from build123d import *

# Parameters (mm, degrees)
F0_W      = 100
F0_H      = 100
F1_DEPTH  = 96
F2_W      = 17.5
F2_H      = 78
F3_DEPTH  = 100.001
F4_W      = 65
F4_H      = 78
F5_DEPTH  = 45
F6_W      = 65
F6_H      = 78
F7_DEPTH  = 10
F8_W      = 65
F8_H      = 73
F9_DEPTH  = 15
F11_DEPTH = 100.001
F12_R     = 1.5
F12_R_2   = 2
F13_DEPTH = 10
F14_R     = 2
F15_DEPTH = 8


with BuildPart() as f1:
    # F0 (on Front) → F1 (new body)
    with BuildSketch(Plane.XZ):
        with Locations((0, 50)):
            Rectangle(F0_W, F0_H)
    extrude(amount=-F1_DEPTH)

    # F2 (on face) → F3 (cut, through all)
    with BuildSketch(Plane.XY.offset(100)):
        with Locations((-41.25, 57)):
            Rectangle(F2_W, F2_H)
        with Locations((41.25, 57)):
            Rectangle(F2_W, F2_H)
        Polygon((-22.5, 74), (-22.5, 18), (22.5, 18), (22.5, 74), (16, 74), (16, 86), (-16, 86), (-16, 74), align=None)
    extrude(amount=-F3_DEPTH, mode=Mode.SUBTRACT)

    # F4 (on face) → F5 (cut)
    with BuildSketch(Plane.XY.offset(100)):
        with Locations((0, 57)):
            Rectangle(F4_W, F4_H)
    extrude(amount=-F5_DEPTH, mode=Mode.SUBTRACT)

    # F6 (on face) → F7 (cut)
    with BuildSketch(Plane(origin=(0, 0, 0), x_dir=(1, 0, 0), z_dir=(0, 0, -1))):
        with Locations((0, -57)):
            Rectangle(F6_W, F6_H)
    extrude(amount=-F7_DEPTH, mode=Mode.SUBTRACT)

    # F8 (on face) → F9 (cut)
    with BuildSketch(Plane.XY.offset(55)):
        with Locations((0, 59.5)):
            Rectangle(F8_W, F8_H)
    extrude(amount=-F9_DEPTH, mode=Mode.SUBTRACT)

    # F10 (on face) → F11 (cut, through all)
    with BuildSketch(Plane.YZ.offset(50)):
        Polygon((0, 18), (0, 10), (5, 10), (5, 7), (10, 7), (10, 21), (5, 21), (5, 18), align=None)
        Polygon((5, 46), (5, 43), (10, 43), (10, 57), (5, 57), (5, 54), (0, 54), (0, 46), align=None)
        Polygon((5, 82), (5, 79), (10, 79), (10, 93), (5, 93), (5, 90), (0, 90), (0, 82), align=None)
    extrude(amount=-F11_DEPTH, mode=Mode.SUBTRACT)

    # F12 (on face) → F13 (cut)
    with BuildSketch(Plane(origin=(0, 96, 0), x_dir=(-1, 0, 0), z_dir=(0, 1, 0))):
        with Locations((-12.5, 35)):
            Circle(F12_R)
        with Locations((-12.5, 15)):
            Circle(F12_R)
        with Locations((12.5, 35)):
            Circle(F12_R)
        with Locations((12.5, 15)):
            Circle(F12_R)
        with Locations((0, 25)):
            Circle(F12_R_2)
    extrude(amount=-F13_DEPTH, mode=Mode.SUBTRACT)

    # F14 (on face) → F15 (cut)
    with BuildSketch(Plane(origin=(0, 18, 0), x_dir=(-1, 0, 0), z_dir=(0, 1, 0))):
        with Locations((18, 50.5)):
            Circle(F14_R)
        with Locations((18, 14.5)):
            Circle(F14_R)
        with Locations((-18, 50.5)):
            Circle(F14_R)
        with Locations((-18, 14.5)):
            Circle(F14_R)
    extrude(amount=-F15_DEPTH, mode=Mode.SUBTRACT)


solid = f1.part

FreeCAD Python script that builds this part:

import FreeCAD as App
import Part
import Sketcher

V = App.Vector

doc = App.newDocument("Part")
body = doc.addObject("PartDesign::Body", "Body")

# Sketch on XZ plane
sketch1 = doc.addObject("Sketcher::SketchObject", "Sketch")
body.addObject(sketch1)
sketch1.AttachmentSupport = (doc.XZ_Plane, [""])
sketch1.MapMode = "FlatFace"
sketch1.addGeometry(Part.LineSegment(V(-50, 100, 0), V(-50, 0, 0)), False)
sketch1.addGeometry(Part.LineSegment(V(-50, 0, 0), V(50, 0, 0)), False)
sketch1.addGeometry(Part.LineSegment(V(50, 0, 0), V(50, 100, 0)), False)
sketch1.addGeometry(Part.LineSegment(V(50, 100, 0), V(-50, 100, 0)), False)
sketch1.addConstraint(Sketcher.Constraint("Coincident", 0, 2, 1, 1))
sketch1.addConstraint(Sketcher.Constraint("Coincident", 1, 2, 2, 1))
sketch1.addConstraint(Sketcher.Constraint("Coincident", 2, 2, 3, 1))
sketch1.addConstraint(Sketcher.Constraint("Coincident", 3, 2, 0, 1))
sketch1.addConstraint(Sketcher.Constraint("Vertical", 0))
sketch1.addConstraint(Sketcher.Constraint("Horizontal", 1))
sketch1.addConstraint(Sketcher.Constraint("Vertical", 2))
sketch1.addConstraint(Sketcher.Constraint("Horizontal", 3))
sketch1.addConstraint(Sketcher.Constraint("Symmetric", 0, 2, 1, 2, -1, 1))
sketch1.addConstraint(Sketcher.Constraint("Equal", 3, 0))
sketch1.addConstraint(Sketcher.Constraint("DistanceX", 1, 1, 1, 2, 100.0))
pad1 = doc.addObject("PartDesign::Pad", "Pad")
body.addObject(pad1)
pad1.Profile = sketch1
pad1.Length = 96
pad1.Reversed = True

# Sketch on XY plane
sketch2 = doc.addObject("Sketcher::SketchObject", "Sketch001")
body.addObject(sketch2)
sketch2.AttachmentSupport = (doc.XY_Plane, [""])
sketch2.MapMode = "FlatFace"
sketch2.AttachmentOffset = App.Placement(V(0, 0, 100), App.Rotation())
sketch2.addGeometry(Part.LineSegment(V(-50, 96, 0), V(-50, 18, 0)), False)
sketch2.addGeometry(Part.LineSegment(V(-50, 18, 0), V(-32, 18, 0)), False)
sketch2.addGeometry(Part.LineSegment(V(-32, 18, 0), V(-32, 96, 0)), False)
sketch2.addGeometry(Part.LineSegment(V(-32, 96, 0), V(-50, 96, 0)), False)
sketch2.addGeometry(Part.LineSegment(V(32, 96, 0), V(32, 18, 0)), False)
sketch2.addGeometry(Part.LineSegment(V(32, 18, 0), V(50, 18, 0)), False)
sketch2.addGeometry(Part.LineSegment(V(50, 18, 0), V(50, 96, 0)), False)
sketch2.addGeometry(Part.LineSegment(V(50, 96, 0), V(32, 96, 0)), False)
sketch2.addGeometry(Part.LineSegment(V(-22, 74, 0), V(-22, 18, 0)), False)
sketch2.addGeometry(Part.LineSegment(V(-22, 18, 0), V(22, 18, 0)), False)
sketch2.addGeometry(Part.LineSegment(V(22, 18, 0), V(22, 74, 0)), False)
sketch2.addGeometry(Part.LineSegment(V(22, 74, 0), V(16, 74, 0)), False)
sketch2.addGeometry(Part.LineSegment(V(16, 74, 0), V(16, 86, 0)), False)
sketch2.addGeometry(Part.LineSegment(V(16, 86, 0), V(-16, 86, 0)), False)
sketch2.addGeometry(Part.LineSegment(V(-16, 86, 0), V(-16, 74, 0)), False)
sketch2.addGeometry(Part.LineSegment(V(-16, 74, 0), V(-22, 74, 0)), False)
sketch2.addConstraint(Sketcher.Constraint("Coincident", 0, 2, 1, 1))
sketch2.addConstraint(Sketcher.Constraint("Coincident", 1, 2, 2, 1))
sketch2.addConstraint(Sketcher.Constraint("Coincident", 2, 2, 3, 1))
sketch2.addConstraint(Sketcher.Constraint("Coincident", 3, 2, 0, 1))
sketch2.addConstraint(Sketcher.Constraint("Coincident", 4, 2, 5, 1))
sketch2.addConstraint(Sketcher.Constraint("Coincident", 5, 2, 6, 1))
sketch2.addConstraint(Sketcher.Constraint("Coincident", 6, 2, 7, 1))
sketch2.addConstraint(Sketcher.Constraint("Coincident", 7, 2, 4, 1))
sketch2.addConstraint(Sketcher.Constraint("Coincident", 8, 2, 9, 1))
sketch2.addConstraint(Sketcher.Constraint("Coincident", 9, 2, 10, 1))
sketch2.addConstraint(Sketcher.Constraint("Coincident", 10, 2, 11, 1))
sketch2.addConstraint(Sketcher.Constraint("Coincident", 11, 2, 12, 1))
sketch2.addConstraint(Sketcher.Constraint("Coincident", 12, 2, 13, 1))
sketch2.addConstraint(Sketcher.Constraint("Coincident", 13, 2, 14, 1))
sketch2.addConstraint(Sketcher.Constraint("Coincident", 14, 2, 15, 1))
sketch2.addConstraint(Sketcher.Constraint("Coincident", 15, 2, 8, 1))
sketch2.addConstraint(Sketcher.Constraint("Vertical", 0))
sketch2.addConstraint(Sketcher.Constraint("Horizontal", 1))
sketch2.addConstraint(Sketcher.Constraint("Vertical", 2))
sketch2.addConstraint(Sketcher.Constraint("Horizontal", 3))
sketch2.addConstraint(Sketcher.Constraint("Vertical", 4))
sketch2.addConstraint(Sketcher.Constraint("Horizontal", 5))
sketch2.addConstraint(Sketcher.Constraint("Vertical", 6))
sketch2.addConstraint(Sketcher.Constraint("Horizontal", 7))
sketch2.addConstraint(Sketcher.Constraint("Vertical", 8))
sketch2.addConstraint(Sketcher.Constraint("Horizontal", 9))
sketch2.addConstraint(Sketcher.Constraint("Vertical", 10))
sketch2.addConstraint(Sketcher.Constraint("Horizontal", 11))
sketch2.addConstraint(Sketcher.Constraint("Vertical", 12))
sketch2.addConstraint(Sketcher.Constraint("Horizontal", 13))
sketch2.addConstraint(Sketcher.Constraint("Vertical", 14))
sketch2.addConstraint(Sketcher.Constraint("Horizontal", 15))
sketch2.addConstraint(Sketcher.Constraint("Symmetric", 1, 2, 4, 2, -2))
sketch2.addConstraint(Sketcher.Constraint("Symmetric", 3, 2, 6, 2, -2))
sketch2.addConstraint(Sketcher.Constraint("Symmetric", 11, 2, 14, 2, -2))
sketch2.addConstraint(Sketcher.Constraint("Horizontal", 5, 2, 8, 2))
sketch2.addConstraint(Sketcher.Constraint("Equal", 11, 15))
sketch2.addConstraint(Sketcher.Constraint("DistanceX", 9, 1, 9, 2, 45.0))
sketch2.addConstraint(Sketcher.Constraint("DistanceX", 13, 2, 13, 1, 32.0))
sketch2.addConstraint(Sketcher.Constraint("DistanceY", 0, 2, 0, 1, 78.0))
sketch2.addConstraint(Sketcher.Constraint("DistanceY", 8, 2, 8, 1, 56.0))
sketch2.addConstraint(Sketcher.Constraint("DistanceY", 12, 1, 12, 2, 12.0))
sketch2.addConstraint(Sketcher.Constraint("DistanceX", 1, 1, 1, 2, 17.5))
sketch2.addConstraint(Sketcher.Constraint("DistanceX", 0, 2, -1, 1, 50.0))
sketch2.addConstraint(Sketcher.Constraint("DistanceY", -1, 1, 0, 2, 18.0))
pocket1 = doc.addObject("PartDesign::Pocket", "Pocket")
body.addObject(pocket1)
pocket1.Profile = sketch2
pocket1.Type = "ThroughAll"

# Sketch on XY plane
sketch3 = doc.addObject("Sketcher::SketchObject", "Sketch002")
body.addObject(sketch3)
sketch3.AttachmentSupport = (doc.XY_Plane, [""])
sketch3.MapMode = "FlatFace"
sketch3.AttachmentOffset = App.Placement(V(0, 0, 100), App.Rotation())
sketch3.addGeometry(Part.LineSegment(V(-32, 96, 0), V(-32, 18, 0)), False)
sketch3.addGeometry(Part.LineSegment(V(-32, 18, 0), V(32, 18, 0)), False)
sketch3.addGeometry(Part.LineSegment(V(32, 18, 0), V(32, 96, 0)), False)
sketch3.addGeometry(Part.LineSegment(V(32, 96, 0), V(-32, 96, 0)), False)
sketch3.addConstraint(Sketcher.Constraint("Coincident", 0, 2, 1, 1))
sketch3.addConstraint(Sketcher.Constraint("Coincident", 1, 2, 2, 1))
sketch3.addConstraint(Sketcher.Constraint("Coincident", 2, 2, 3, 1))
sketch3.addConstraint(Sketcher.Constraint("Coincident", 3, 2, 0, 1))
sketch3.addConstraint(Sketcher.Constraint("Vertical", 0))
sketch3.addConstraint(Sketcher.Constraint("Horizontal", 1))
sketch3.addConstraint(Sketcher.Constraint("Vertical", 2))
sketch3.addConstraint(Sketcher.Constraint("Horizontal", 3))
sketch3.addConstraint(Sketcher.Constraint("DistanceX", 1, 1, 1, 2, 65.0))
sketch3.addConstraint(Sketcher.Constraint("DistanceY", 0, 2, 0, 1, 78.0))
sketch3.addConstraint(Sketcher.Constraint("DistanceY", -1, 1, 0, 2, 18.0))
sketch3.addConstraint(Sketcher.Constraint("DistanceX", 0, 2, -1, 1, 32.5))
pocket2 = doc.addObject("PartDesign::Pocket", "Pocket001")
body.addObject(pocket2)
pocket2.Profile = sketch3
pocket2.Length = 45

# Sketch on XY plane
sketch4 = doc.addObject("Sketcher::SketchObject", "Sketch003")
body.addObject(sketch4)
sketch4.AttachmentSupport = (doc.XY_Plane, [""])
sketch4.MapMode = "FlatFace"
sketch4.addGeometry(Part.LineSegment(V(-32, 18, 0), V(-32, 96, 0)), False)
sketch4.addGeometry(Part.LineSegment(V(-32, 96, 0), V(32, 96, 0)), False)
sketch4.addGeometry(Part.LineSegment(V(32, 96, 0), V(32, 18, 0)), False)
sketch4.addGeometry(Part.LineSegment(V(32, 18, 0), V(-32, 18, 0)), False)
sketch4.addConstraint(Sketcher.Constraint("Coincident", 0, 2, 1, 1))
sketch4.addConstraint(Sketcher.Constraint("Coincident", 1, 2, 2, 1))
sketch4.addConstraint(Sketcher.Constraint("Coincident", 2, 2, 3, 1))
sketch4.addConstraint(Sketcher.Constraint("Coincident", 3, 2, 0, 1))
sketch4.addConstraint(Sketcher.Constraint("Vertical", 0))
sketch4.addConstraint(Sketcher.Constraint("Horizontal", 1))
sketch4.addConstraint(Sketcher.Constraint("Vertical", 2))
sketch4.addConstraint(Sketcher.Constraint("Horizontal", 3))
sketch4.addConstraint(Sketcher.Constraint("DistanceX", 1, 1, 1, 2, 65.0))
sketch4.addConstraint(Sketcher.Constraint("DistanceY", 0, 1, 0, 2, 78.0))
sketch4.addConstraint(Sketcher.Constraint("DistanceY", -1, 1, 0, 2, 96.0))
sketch4.addConstraint(Sketcher.Constraint("DistanceX", 0, 2, -1, 1, 32.5))
pocket3 = doc.addObject("PartDesign::Pocket", "Pocket002")
body.addObject(pocket3)
pocket3.Profile = sketch4
pocket3.Length = 10
pocket3.Reversed = True

# Sketch on XY plane
sketch5 = doc.addObject("Sketcher::SketchObject", "Sketch004")
body.addObject(sketch5)
sketch5.AttachmentSupport = (doc.XY_Plane, [""])
sketch5.MapMode = "FlatFace"
sketch5.AttachmentOffset = App.Placement(V(0, 0, 55), App.Rotation())
sketch5.addGeometry(Part.LineSegment(V(-32, 96, 0), V(-32, 23, 0)), False)
sketch5.addGeometry(Part.LineSegment(V(-32, 23, 0), V(32, 23, 0)), False)
sketch5.addGeometry(Part.LineSegment(V(32, 23, 0), V(32, 96, 0)), False)
sketch5.addGeometry(Part.LineSegment(V(32, 96, 0), V(-32, 96, 0)), False)
sketch5.addConstraint(Sketcher.Constraint("Coincident", 0, 2, 1, 1))
sketch5.addConstraint(Sketcher.Constraint("Coincident", 1, 2, 2, 1))
sketch5.addConstraint(Sketcher.Constraint("Coincident", 2, 2, 3, 1))
sketch5.addConstraint(Sketcher.Constraint("Coincident", 3, 2, 0, 1))
sketch5.addConstraint(Sketcher.Constraint("Vertical", 0))
sketch5.addConstraint(Sketcher.Constraint("Horizontal", 1))
sketch5.addConstraint(Sketcher.Constraint("Vertical", 2))
sketch5.addConstraint(Sketcher.Constraint("Horizontal", 3))
sketch5.addConstraint(Sketcher.Constraint("DistanceX", 1, 1, 1, 2, 65.0))
sketch5.addConstraint(Sketcher.Constraint("DistanceY", 0, 2, 0, 1, 73.0))
sketch5.addConstraint(Sketcher.Constraint("DistanceY", -1, 1, 0, 2, 23.0))
sketch5.addConstraint(Sketcher.Constraint("DistanceX", 0, 2, -1, 1, 32.5))
pocket4 = doc.addObject("PartDesign::Pocket", "Pocket003")
body.addObject(pocket4)
pocket4.Profile = sketch5
pocket4.Length = 15

# Sketch on YZ plane
sketch6 = doc.addObject("Sketcher::SketchObject", "Sketch005")
body.addObject(sketch6)
sketch6.AttachmentSupport = (doc.YZ_Plane, [""])
sketch6.MapMode = "FlatFace"
sketch6.AttachmentOffset = App.Placement(V(0, 0, 50), App.Rotation())
sketch6.addGeometry(Part.LineSegment(V(0, 18, 0), V(0, 10, 0)), False)
sketch6.addGeometry(Part.LineSegment(V(0, 10, 0), V(5, 10, 0)), False)
sketch6.addGeometry(Part.LineSegment(V(5, 10, 0), V(5, 7, 0)), False)
sketch6.addGeometry(Part.LineSegment(V(5, 7, 0), V(10, 7, 0)), False)
sketch6.addGeometry(Part.LineSegment(V(10, 7, 0), V(10, 21, 0)), False)
sketch6.addGeometry(Part.LineSegment(V(10, 21, 0), V(5, 21, 0)), False)
sketch6.addGeometry(Part.LineSegment(V(5, 21, 0), V(5, 18, 0)), False)
sketch6.addGeometry(Part.LineSegment(V(5, 18, 0), V(0, 18, 0)), False)
sketch6.addGeometry(Part.LineSegment(V(5, 46, 0), V(5, 43, 0)), False)
sketch6.addGeometry(Part.LineSegment(V(5, 43, 0), V(10, 43, 0)), False)
sketch6.addGeometry(Part.LineSegment(V(10, 43, 0), V(10, 57, 0)), False)
sketch6.addGeometry(Part.LineSegment(V(10, 57, 0), V(5, 57, 0)), False)
sketch6.addGeometry(Part.LineSegment(V(5, 57, 0), V(5, 54, 0)), False)
sketch6.addGeometry(Part.LineSegment(V(5, 54, 0), V(0, 54, 0)), False)
sketch6.addGeometry(Part.LineSegment(V(0, 54, 0), V(0, 46, 0)), False)
sketch6.addGeometry(Part.LineSegment(V(0, 46, 0), V(5, 46, 0)), False)
sketch6.addGeometry(Part.LineSegment(V(5, 82, 0), V(5, 79, 0)), False)
sketch6.addGeometry(Part.LineSegment(V(5, 79, 0), V(10, 79, 0)), False)
sketch6.addGeometry(Part.LineSegment(V(10, 79, 0), V(10, 93, 0)), False)
sketch6.addGeometry(Part.LineSegment(V(10, 93, 0), V(5, 93, 0)), False)
sketch6.addGeometry(Part.LineSegment(V(5, 93, 0), V(5, 90, 0)), False)
sketch6.addGeometry(Part.LineSegment(V(5, 90, 0), V(0, 90, 0)), False)
sketch6.addGeometry(Part.LineSegment(V(0, 90, 0), V(0, 82, 0)), False)
sketch6.addGeometry(Part.LineSegment(V(0, 82, 0), V(5, 82, 0)), False)
sketch6.addConstraint(Sketcher.Constraint("Coincident", 0, 2, 1, 1))
sketch6.addConstraint(Sketcher.Constraint("Coincident", 1, 2, 2, 1))
sketch6.addConstraint(Sketcher.Constraint("Coincident", 2, 2, 3, 1))
sketch6.addConstraint(Sketcher.Constraint("Coincident", 3, 2, 4, 1))
sketch6.addConstraint(Sketcher.Constraint("Coincident", 4, 2, 5, 1))
sketch6.addConstraint(Sketcher.Constraint("Coincident", 5, 2, 6, 1))
sketch6.addConstraint(Sketcher.Constraint("Coincident", 6, 2, 7, 1))
sketch6.addConstraint(Sketcher.Constraint("Coincident", 7, 2, 0, 1))
sketch6.addConstraint(Sketcher.Constraint("Coincident", 8, 2, 9, 1))
sketch6.addConstraint(Sketcher.Constraint("Coincident", 9, 2, 10, 1))
sketch6.addConstraint(Sketcher.Constraint("Coincident", 10, 2, 11, 1))
sketch6.addConstraint(Sketcher.Constraint("Coincident", 11, 2, 12, 1))
sketch6.addConstraint(Sketcher.Constraint("Coincident", 12, 2, 13, 1))
sketch6.addConstraint(Sketcher.Constraint("Coincident", 13, 2, 14, 1))
sketch6.addConstraint(Sketcher.Constraint("Coincident", 14, 2, 15, 1))
sketch6.addConstraint(Sketcher.Constraint("Coincident", 15, 2, 8, 1))
sketch6.addConstraint(Sketcher.Constraint("Coincident", 16, 2, 17, 1))
sketch6.addConstraint(Sketcher.Constraint("Coincident", 17, 2, 18, 1))
sketch6.addConstraint(Sketcher.Constraint("Coincident", 18, 2, 19, 1))
sketch6.addConstraint(Sketcher.Constraint("Coincident", 19, 2, 20, 1))
sketch6.addConstraint(Sketcher.Constraint("Coincident", 20, 2, 21, 1))
sketch6.addConstraint(Sketcher.Constraint("Coincident", 21, 2, 22, 1))
sketch6.addConstraint(Sketcher.Constraint("Coincident", 22, 2, 23, 1))
sketch6.addConstraint(Sketcher.Constraint("Coincident", 23, 2, 16, 1))
sketch6.addConstraint(Sketcher.Constraint("Vertical", 0))
sketch6.addConstraint(Sketcher.Constraint("Horizontal", 1))
sketch6.addConstraint(Sketcher.Constraint("Vertical", 2))
sketch6.addConstraint(Sketcher.Constraint("Horizontal", 3))
sketch6.addConstraint(Sketcher.Constraint("Vertical", 4))
sketch6.addConstraint(Sketcher.Constraint("Horizontal", 5))
sketch6.addConstraint(Sketcher.Constraint("Vertical", 6))
sketch6.addConstraint(Sketcher.Constraint("Horizontal", 7))
sketch6.addConstraint(Sketcher.Constraint("Vertical", 8))
sketch6.addConstraint(Sketcher.Constraint("Horizontal", 9))
sketch6.addConstraint(Sketcher.Constraint("Vertical", 10))
sketch6.addConstraint(Sketcher.Constraint("Horizontal", 11))
sketch6.addConstraint(Sketcher.Constraint("Vertical", 12))
sketch6.addConstraint(Sketcher.Constraint("Horizontal", 13))
sketch6.addConstraint(Sketcher.Constraint("Vertical", 14))
sketch6.addConstraint(Sketcher.Constraint("Horizontal", 15))
sketch6.addConstraint(Sketcher.Constraint("Vertical", 16))
sketch6.addConstraint(Sketcher.Constraint("Horizontal", 17))
sketch6.addConstraint(Sketcher.Constraint("Vertical", 18))
sketch6.addConstraint(Sketcher.Constraint("Horizontal", 19))
sketch6.addConstraint(Sketcher.Constraint("Vertical", 20))
sketch6.addConstraint(Sketcher.Constraint("Horizontal", 21))
sketch6.addConstraint(Sketcher.Constraint("Vertical", 22))
sketch6.addConstraint(Sketcher.Constraint("Horizontal", 23))
sketch6.addConstraint(Sketcher.Constraint("PointOnObject", 0, 2, -2))
sketch6.addConstraint(Sketcher.Constraint("PointOnObject", 13, 2, -2))
sketch6.addConstraint(Sketcher.Constraint("PointOnObject", 21, 2, -2))
sketch6.addConstraint(Sketcher.Constraint("Vertical", 2, 2, 5, 2))
sketch6.addConstraint(Sketcher.Constraint("Vertical", 6, 2, 8, 2))
sketch6.addConstraint(Sketcher.Constraint("Vertical", 4, 2, 9, 2))
sketch6.addConstraint(Sketcher.Constraint("Vertical", 8, 2, 11, 2))
sketch6.addConstraint(Sketcher.Constraint("Vertical", 15, 2, 16, 2))
sketch6.addConstraint(Sketcher.Constraint("Vertical", 10, 2, 17, 2))
sketch6.addConstraint(Sketcher.Constraint("Vertical", 16, 2, 19, 2))
sketch6.addConstraint(Sketcher.Constraint("Equal", 1, 3))
sketch6.addConstraint(Sketcher.Constraint("Equal", 2, 6))
sketch6.addConstraint(Sketcher.Constraint("Equal", 6, 8))
sketch6.addConstraint(Sketcher.Constraint("Equal", 4, 10))
sketch6.addConstraint(Sketcher.Constraint("Equal", 8, 12))
sketch6.addConstraint(Sketcher.Constraint("Equal", 12, 16))
sketch6.addConstraint(Sketcher.Constraint("Equal", 10, 18))
sketch6.addConstraint(Sketcher.Constraint("Equal", 16, 20))
sketch6.addConstraint(Sketcher.Constraint("DistanceX", 1, 1, 1, 2, 5.0))
sketch6.addConstraint(Sketcher.Constraint("DistanceY", 0, 2, 0, 1, 8.0))
sketch6.addConstraint(Sketcher.Constraint("DistanceY", 2, 2, 2, 1, 3.0))
sketch6.addConstraint(Sketcher.Constraint("DistanceY", -1, 1, 0, 2, 10.0))
sketch6.addConstraint(Sketcher.Constraint("DistanceY", -1, 1, 8, 2, 43.0))
sketch6.addConstraint(Sketcher.Constraint("DistanceY", -1, 1, 16, 2, 79.0))
pocket5 = doc.addObject("PartDesign::Pocket", "Pocket004")
body.addObject(pocket5)
pocket5.Profile = sketch6
pocket5.Type = "ThroughAll"

# Sketch on XZ plane
sketch7 = doc.addObject("Sketcher::SketchObject", "Sketch006")
body.addObject(sketch7)
sketch7.AttachmentSupport = (doc.XZ_Plane, [""])
sketch7.MapMode = "FlatFace"
sketch7.AttachmentOffset = App.Placement(V(0, 0, -96), App.Rotation())
sketch7.addGeometry(Part.Circle(V(12.5, 35, 0), V(0, 0, 1), 1.5), False)
sketch7.addGeometry(Part.Circle(V(12.5, 15, 0), V(0, 0, 1), 1.5), False)
sketch7.addGeometry(Part.Circle(V(-12.5, 35, 0), V(0, 0, 1), 1.5), False)
sketch7.addGeometry(Part.Circle(V(-12.5, 15, 0), V(0, 0, 1), 1.5), False)
sketch7.addGeometry(Part.Circle(V(0, 25, 0), V(0, 0, 1), 2), False)
sketch7.addConstraint(Sketcher.Constraint("Equal", 0, 1))
sketch7.addConstraint(Sketcher.Constraint("Equal", 1, 2))
sketch7.addConstraint(Sketcher.Constraint("Equal", 2, 3))
sketch7.addConstraint(Sketcher.Constraint("Symmetric", 0, 3, 2, 3, -2))
sketch7.addConstraint(Sketcher.Constraint("Symmetric", 1, 3, 3, 3, -2))
sketch7.addConstraint(Sketcher.Constraint("PointOnObject", 4, 3, -2))
sketch7.addConstraint(Sketcher.Constraint("Vertical", 0, 3, 1, 3))
sketch7.addConstraint(Sketcher.Constraint("Diameter", 0, 3.0))
sketch7.addConstraint(Sketcher.Constraint("Diameter", 4, 4.0))
sketch7.addConstraint(Sketcher.Constraint("DistanceY", -1, 1, 0, 3, 35.0))
sketch7.addConstraint(Sketcher.Constraint("DistanceY", -1, 1, 1, 3, 15.0))
sketch7.addConstraint(Sketcher.Constraint("DistanceY", -1, 1, 4, 3, 25.0))
sketch7.addConstraint(Sketcher.Constraint("DistanceX", 2, 3, 0, 3, 25.0))
pocket6 = doc.addObject("PartDesign::Pocket", "Pocket005")
body.addObject(pocket6)
pocket6.Profile = sketch7
pocket6.Length = 10
pocket6.Reversed = True

# Sketch on XZ plane
sketch8 = doc.addObject("Sketcher::SketchObject", "Sketch007")
body.addObject(sketch8)
sketch8.AttachmentSupport = (doc.XZ_Plane, [""])
sketch8.MapMode = "FlatFace"
sketch8.AttachmentOffset = App.Placement(V(0, 0, -18), App.Rotation())
sketch8.addGeometry(Part.Circle(V(-18, 50.5, 0), V(0, 0, 1), 2), False)
sketch8.addGeometry(Part.Circle(V(-18, 14.5, 0), V(0, 0, 1), 2), False)
sketch8.addGeometry(Part.Circle(V(18, 50.5, 0), V(0, 0, 1), 2), False)
sketch8.addGeometry(Part.Circle(V(18, 14.5, 0), V(0, 0, 1), 2), False)
sketch8.addConstraint(Sketcher.Constraint("Equal", 0, 1))
sketch8.addConstraint(Sketcher.Constraint("Equal", 1, 2))
sketch8.addConstraint(Sketcher.Constraint("Equal", 2, 3))
sketch8.addConstraint(Sketcher.Constraint("Symmetric", 0, 3, 2, 3, -2))
sketch8.addConstraint(Sketcher.Constraint("Symmetric", 1, 3, 3, 3, -2))
sketch8.addConstraint(Sketcher.Constraint("Vertical", 0, 3, 1, 3))
sketch8.addConstraint(Sketcher.Constraint("Diameter", 0, 4.0))
sketch8.addConstraint(Sketcher.Constraint("DistanceX", 0, 3, -1, 1, 18.0))
sketch8.addConstraint(Sketcher.Constraint("DistanceY", 1, 3, 0, 3, 36.0))
sketch8.addConstraint(Sketcher.Constraint("DistanceY", -1, 1, 0, 3, 50.5))
pocket7 = doc.addObject("PartDesign::Pocket", "Pocket006")
body.addObject(pocket7)
pocket7.Profile = sketch8
pocket7.Length = 8
pocket7.Reversed = True

doc.recompute()
